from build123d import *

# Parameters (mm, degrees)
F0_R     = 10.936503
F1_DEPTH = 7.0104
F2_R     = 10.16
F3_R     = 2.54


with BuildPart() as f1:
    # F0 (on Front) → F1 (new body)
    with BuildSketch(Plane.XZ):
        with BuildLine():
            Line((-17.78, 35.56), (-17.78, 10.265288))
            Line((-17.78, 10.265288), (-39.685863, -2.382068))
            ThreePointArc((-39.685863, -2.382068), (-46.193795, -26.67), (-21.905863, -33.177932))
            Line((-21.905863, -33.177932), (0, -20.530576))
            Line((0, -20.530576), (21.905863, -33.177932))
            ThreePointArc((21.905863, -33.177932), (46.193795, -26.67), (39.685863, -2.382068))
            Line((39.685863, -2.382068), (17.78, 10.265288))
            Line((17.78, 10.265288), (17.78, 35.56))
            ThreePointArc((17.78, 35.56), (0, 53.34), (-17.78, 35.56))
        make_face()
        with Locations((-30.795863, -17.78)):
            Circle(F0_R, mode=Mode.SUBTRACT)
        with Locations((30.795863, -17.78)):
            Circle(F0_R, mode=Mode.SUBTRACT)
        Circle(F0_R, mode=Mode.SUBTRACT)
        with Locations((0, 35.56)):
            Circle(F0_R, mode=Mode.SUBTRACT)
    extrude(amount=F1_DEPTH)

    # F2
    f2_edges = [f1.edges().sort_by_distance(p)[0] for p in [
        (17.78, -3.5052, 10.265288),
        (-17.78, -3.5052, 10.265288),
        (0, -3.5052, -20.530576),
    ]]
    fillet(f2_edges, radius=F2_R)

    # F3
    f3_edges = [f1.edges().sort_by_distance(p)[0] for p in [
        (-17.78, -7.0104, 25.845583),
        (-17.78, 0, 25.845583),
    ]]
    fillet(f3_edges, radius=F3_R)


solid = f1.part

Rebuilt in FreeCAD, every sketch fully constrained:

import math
import FreeCAD as App
import Part
import Sketcher

V = App.Vector
Q = App.Units.Quantity


def edges_at(feature, points):
    """Names of the edges that pass closest to the given points."""
    edges = feature.Shape.Edges
    near = lambda p: min(range(len(edges)), key=lambda i: edges[i].distToShape(Part.Vertex(*p))[0])
    return sorted({f"Edge{near(p) + 1}" for p in points})

doc = App.newDocument("Part")
params = doc.addObject("Spreadsheet::Sheet", "Params")
for row, (alias, value) in enumerate([
    ("sketch1_radius", "0.7 in"),
    ("pad1_length", "0.276 in"),
    ("fillet_radius", "0.4 in"),
    ("fillet2_radius", "0.1 in"),
], start=1):
    params.set(f"A{row}", alias)
    params.set(f"B{row}", "=" + value)
    params.setAlias(f"B{row}", alias)

body = doc.addObject("PartDesign::Body", "Body")

sketch1 = doc.addObject("Sketcher::SketchObject", "Sketch")
body.addObject(sketch1)
sketch1.AttachmentSupport = (doc.XZ_Plane, [""])
sketch1.MapMode = "FlatFace"
sketch1.addGeometry([
    Part.LineSegment(V(-18, 36, 0), V(-18, 10, 0)),
    Part.LineSegment(V(-18, 10, 0), V(-40, -2, 0)),
    Part.ArcOfCircle(Part.Circle(V(-31, -18, 0), V(0, 0, 1), 18), math.radians(120), math.radians(300)),
    Part.LineSegment(V(-22, -33, 0), V(0, -21, 0)),
    Part.LineSegment(V(0, -21, 0), V(22, -33, 0)),
    Part.ArcOfCircle(Part.Circle(V(31, -18, 0), V(0, 0, 1), 18), math.radians(-120), math.radians(60)),
    Part.LineSegment(V(40, -2, 0), V(18, 10, 0)),
    Part.LineSegment(V(18, 10, 0), V(18, 36, 0)),
    Part.ArcOfCircle(Part.Circle(V(0, 36, 0), V(0, 0, 1), 18), math.radians(0), math.radians(180)),
    Part.Circle(V(-31, -18, 0), V(0, 0, 1), 11),
    Part.Circle(V(31, -18, 0), V(0, 0, 1), 11),
    Part.Circle(V(0, 0, 0), V(0, 0, 1), 11),
    Part.Circle(V(0, 36, 0), V(0, 0, 1), 11),
], False)
sketch1.addConstraint([
    Sketcher.Constraint("Coincident", 0, 2, 1, 1),
    Sketcher.Constraint("Tangent", 1, 2, 2, 1),
    Sketcher.Constraint("Tangent", 2, 2, 3, 1),
    Sketcher.Constraint("Coincident", 3, 2, 4, 1),
    Sketcher.Constraint("Tangent", 4, 2, 5, 1),
    Sketcher.Constraint("Tangent", 5, 2, 6, 1),
    Sketcher.Constraint("Coincident", 6, 2, 7, 1),
    Sketcher.Constraint("Tangent", 7, 2, 8, 1),
    Sketcher.Constraint("Tangent", 8, 2, 0, 1),
    Sketcher.Constraint("Vertical", 0),
    Sketcher.Constraint("Vertical", 7),
    Sketcher.Constraint("Coincident", 11, 3, -1, 1),
    Sketcher.Constraint("Coincident", 9, 3, 2, 3),
    Sketcher.Constraint("Coincident", 10, 3, 5, 3),
    Sketcher.Constraint("Coincident", 12, 3, 8, 3),
    Sketcher.Constraint("Equal", 2, 5),
    Sketcher.Constraint("Equal", 5, 8),
    Sketcher.Constraint("Equal", 9, 10),
    Sketcher.Constraint("Equal", 10, 11),
    Sketcher.Constraint("Equal", 11, 12),
    Sketcher.Constraint("Symmetric", 2, 3, 5, 3, -2),
    Sketcher.Constraint("Symmetric", 0, 2, 6, 2, -2),
    Sketcher.Constraint("PointOnObject", 3, 2, -2),
    Sketcher.Constraint("Parallel", 1, 3),
    Sketcher.Constraint("Equal", 1, 3),
    Sketcher.Constraint("Radius", 2, Q("0.7 in")),
    Sketcher.Constraint("DistanceY", 2, 3, -1, 1, Q("0.7 in")),
    Sketcher.Constraint("DistanceY", -1, 1, 8, 3, Q("1.4 in")),
    Sketcher.Constraint("Diameter", 9, 21.873006),
    Sketcher.Constraint("Distance", 1, 25.294712),
])
sketch1.setExpression("Constraints[25]", "Params.sketch1_radius")
pad1 = doc.addObject("PartDesign::Pad", "Pad")
body.addObject(pad1)
pad1.Profile = sketch1
pad1.setExpression("Length", "Params.pad1_length")
doc.recompute()

fillet = doc.addObject("PartDesign::Fillet", "Fillet")
body.addObject(fillet)
fillet.Base = (pad1, edges_at(pad1, [(17.78, -3.505, 10.265), (-17.78, -3.505, 10.265), (0, -3.505, -20.531)]))
fillet.setExpression("Radius", "Params.fillet_radius")
doc.recompute()

fillet2 = doc.addObject("PartDesign::Fillet", "Fillet001")
body.addObject(fillet2)
fillet2.Base = (fillet, edges_at(fillet, [(-17.78, -7.01, 25.846), (-17.78, 0, 25.846)]))
fillet2.setExpression("Radius", "Params.fillet2_radius")

doc.recompute()
